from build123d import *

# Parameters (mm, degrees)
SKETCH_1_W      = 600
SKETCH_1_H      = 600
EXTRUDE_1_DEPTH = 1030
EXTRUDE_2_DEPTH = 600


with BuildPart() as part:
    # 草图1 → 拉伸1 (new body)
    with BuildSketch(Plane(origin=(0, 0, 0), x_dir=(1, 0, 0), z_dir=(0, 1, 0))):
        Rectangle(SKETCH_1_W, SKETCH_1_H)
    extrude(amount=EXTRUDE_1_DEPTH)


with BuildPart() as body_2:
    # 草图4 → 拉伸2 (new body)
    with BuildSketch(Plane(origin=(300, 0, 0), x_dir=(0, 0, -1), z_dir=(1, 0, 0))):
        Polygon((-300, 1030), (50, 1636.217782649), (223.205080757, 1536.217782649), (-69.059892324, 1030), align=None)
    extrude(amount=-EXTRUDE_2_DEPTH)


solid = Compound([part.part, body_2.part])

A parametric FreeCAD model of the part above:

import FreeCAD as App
import Part
import Sketcher
Q = App.Units.Quantity


def add_polygon(sketch, points):
    """Adds a closed chain of lines whose ends are joined by coincident constraints."""
    first, n = sketch.GeometryCount, len(points)
    for a, b in zip(points, points[1:] + points[:1]):
        sketch.addGeometry(Part.LineSegment(App.Vector(*a, 0), App.Vector(*b, 0)), False)
    for i in range(n):
        sketch.addConstraint(Sketcher.Constraint("Coincident", first + i, 2, first + (i + 1) % n, 1))

doc = App.newDocument("Part")
body = doc.addObject("PartDesign::Body", "Body")

sketch1 = body.newObject("Sketcher::SketchObject", "Sketch")
sketch1.AttachmentSupport = (doc.getObject("XZ_Plane"), [""])
sketch1.MapMode = "FlatFace"
add_polygon(sketch1, [(-300, -300), (-300, 300), (300, 300), (300, -300)])
sketch1.addConstraint([
    Sketcher.Constraint("Vertical", 0),
    Sketcher.Constraint("Horizontal", 1),
    Sketcher.Constraint("Vertical", 2),
    Sketcher.Constraint("Horizontal", 3),
    Sketcher.Constraint("Symmetric", 0, 2, 2, 2, -1, 1),
    Sketcher.Constraint("Equal", 3, 0),
    Sketcher.Constraint("DistanceX", 1, 1, 1, 2, 600.0),
])
pad1 = body.newObject("PartDesign::Pad", "Pad")
pad1.Profile = sketch1
pad1.Length = 1030
pad1.Reversed = True
body2 = doc.addObject("PartDesign::Body", "Body001")

sketch2 = body2.newObject("Sketcher::SketchObject", "Sketch001")
sketch2.AttachmentSupport = (doc.getObject("YZ_Plane001"), [""])
sketch2.MapMode = "FlatFace"
sketch2.AttachmentOffset = App.Placement(App.Vector(0, 0, 300), App.Rotation())
add_polygon(sketch2, [(1636, -50), (1030, 300), (1030, 69), (1536, -223)])
sketch2.addConstraint([
    Sketcher.Constraint("Vertical", 1),
    Sketcher.Constraint("Parallel", 0, 2),
    Sketcher.Constraint("Perpendicular", 2, 3),
    Sketcher.Constraint("Angle", 0, Q("150 deg")),
    Sketcher.Constraint("Distance", 0, 700.0),
    Sketcher.Constraint("Distance", 3, 200.0),
    Sketcher.Constraint("DistanceX", -1, 1, 0, 2, 1030.0),
    Sketcher.Constraint("DistanceY", -1, 1, 0, 2, 300.0),
])
pad2 = body2.newObject("PartDesign::Pad", "Pad001")
pad2.Profile = sketch2
pad2.Length = 600
pad2.Reversed = True

doc.recompute()
